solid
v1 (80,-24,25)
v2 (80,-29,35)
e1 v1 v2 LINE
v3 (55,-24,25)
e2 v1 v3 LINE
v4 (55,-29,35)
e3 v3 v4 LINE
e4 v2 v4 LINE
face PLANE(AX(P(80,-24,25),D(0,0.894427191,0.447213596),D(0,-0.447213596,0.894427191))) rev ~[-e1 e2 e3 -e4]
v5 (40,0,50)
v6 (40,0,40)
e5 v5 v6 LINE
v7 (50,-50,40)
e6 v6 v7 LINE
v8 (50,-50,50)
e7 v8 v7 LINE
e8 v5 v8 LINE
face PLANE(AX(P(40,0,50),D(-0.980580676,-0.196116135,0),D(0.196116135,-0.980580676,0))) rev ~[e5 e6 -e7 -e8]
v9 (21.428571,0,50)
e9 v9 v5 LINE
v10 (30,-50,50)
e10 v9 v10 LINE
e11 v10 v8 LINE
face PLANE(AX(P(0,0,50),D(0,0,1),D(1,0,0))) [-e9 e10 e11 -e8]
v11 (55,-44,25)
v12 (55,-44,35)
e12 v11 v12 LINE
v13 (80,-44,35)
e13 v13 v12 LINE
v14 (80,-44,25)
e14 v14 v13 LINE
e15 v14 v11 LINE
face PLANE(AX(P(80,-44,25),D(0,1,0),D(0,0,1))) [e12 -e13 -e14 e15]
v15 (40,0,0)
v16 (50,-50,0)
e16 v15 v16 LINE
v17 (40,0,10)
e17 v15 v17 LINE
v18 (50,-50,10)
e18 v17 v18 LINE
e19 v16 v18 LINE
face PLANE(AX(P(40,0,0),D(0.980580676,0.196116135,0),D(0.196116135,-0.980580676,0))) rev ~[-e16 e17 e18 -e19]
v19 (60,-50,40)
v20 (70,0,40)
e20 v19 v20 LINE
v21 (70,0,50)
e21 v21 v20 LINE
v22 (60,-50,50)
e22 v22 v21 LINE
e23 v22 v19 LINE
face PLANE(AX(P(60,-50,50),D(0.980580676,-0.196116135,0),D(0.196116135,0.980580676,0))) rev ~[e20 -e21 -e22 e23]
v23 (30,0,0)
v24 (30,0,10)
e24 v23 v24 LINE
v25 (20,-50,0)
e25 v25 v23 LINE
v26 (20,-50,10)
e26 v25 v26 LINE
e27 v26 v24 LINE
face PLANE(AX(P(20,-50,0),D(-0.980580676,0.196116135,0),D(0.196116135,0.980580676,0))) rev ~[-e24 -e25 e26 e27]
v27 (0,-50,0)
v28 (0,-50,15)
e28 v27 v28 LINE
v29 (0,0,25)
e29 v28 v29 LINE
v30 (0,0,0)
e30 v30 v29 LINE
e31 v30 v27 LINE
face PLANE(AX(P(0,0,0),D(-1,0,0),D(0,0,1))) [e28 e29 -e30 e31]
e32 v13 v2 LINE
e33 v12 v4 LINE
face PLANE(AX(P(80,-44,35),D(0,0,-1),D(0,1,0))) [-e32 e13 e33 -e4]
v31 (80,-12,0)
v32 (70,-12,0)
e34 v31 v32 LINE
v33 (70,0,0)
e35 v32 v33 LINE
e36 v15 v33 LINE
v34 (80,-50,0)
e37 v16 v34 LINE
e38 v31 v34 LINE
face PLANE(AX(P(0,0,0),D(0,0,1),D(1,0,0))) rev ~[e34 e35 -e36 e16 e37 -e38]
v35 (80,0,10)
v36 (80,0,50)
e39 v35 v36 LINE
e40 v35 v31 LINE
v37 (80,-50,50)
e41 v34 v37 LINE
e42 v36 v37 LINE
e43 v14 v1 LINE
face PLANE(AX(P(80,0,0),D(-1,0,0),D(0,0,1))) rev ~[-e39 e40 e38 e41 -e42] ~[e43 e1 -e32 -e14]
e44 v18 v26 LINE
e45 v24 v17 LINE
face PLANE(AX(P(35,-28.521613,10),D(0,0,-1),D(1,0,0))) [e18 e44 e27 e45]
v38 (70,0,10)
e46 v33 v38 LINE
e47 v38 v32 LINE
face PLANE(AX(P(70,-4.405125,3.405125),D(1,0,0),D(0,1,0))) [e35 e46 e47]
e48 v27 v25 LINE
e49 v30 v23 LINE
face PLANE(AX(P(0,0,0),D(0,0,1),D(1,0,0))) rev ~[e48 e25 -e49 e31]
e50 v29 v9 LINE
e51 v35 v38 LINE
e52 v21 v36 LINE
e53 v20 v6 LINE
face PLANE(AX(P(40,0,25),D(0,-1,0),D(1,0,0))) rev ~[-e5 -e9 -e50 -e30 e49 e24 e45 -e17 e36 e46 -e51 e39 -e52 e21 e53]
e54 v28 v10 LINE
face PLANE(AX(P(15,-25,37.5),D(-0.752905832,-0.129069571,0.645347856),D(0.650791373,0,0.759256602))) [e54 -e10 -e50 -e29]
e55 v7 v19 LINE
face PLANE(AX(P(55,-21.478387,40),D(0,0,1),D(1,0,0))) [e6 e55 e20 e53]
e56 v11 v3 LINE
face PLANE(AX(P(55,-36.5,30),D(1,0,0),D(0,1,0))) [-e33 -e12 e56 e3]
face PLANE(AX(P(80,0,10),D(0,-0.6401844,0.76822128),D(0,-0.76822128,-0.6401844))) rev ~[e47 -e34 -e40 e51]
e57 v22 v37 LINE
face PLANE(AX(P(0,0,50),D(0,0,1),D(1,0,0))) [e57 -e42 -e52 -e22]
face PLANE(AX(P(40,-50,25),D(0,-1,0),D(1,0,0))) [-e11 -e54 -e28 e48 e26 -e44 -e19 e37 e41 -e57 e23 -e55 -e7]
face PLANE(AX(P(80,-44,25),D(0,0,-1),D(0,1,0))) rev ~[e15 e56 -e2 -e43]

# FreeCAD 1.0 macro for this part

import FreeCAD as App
import Part
import Sketcher

V = App.Vector


def add_polygon(sketch, points):
    """Adds a closed chain of lines whose ends are joined by coincident constraints."""
    first, n = sketch.GeometryCount, len(points)
    for a, b in zip(points, points[1:] + points[:1]):
        sketch.addGeometry(Part.LineSegment(App.Vector(*a, 0), App.Vector(*b, 0)), False)
    for i in range(n):
        sketch.addConstraint(Sketcher.Constraint("Coincident", first + i, 2, first + (i + 1) % n, 1))

doc = App.newDocument("Part")
body = doc.addObject("PartDesign::Body", "Body")

# Sketch on XZ plane
sketch1 = body.newObject("Sketcher::SketchObject", "Sketch")
sketch1.AttachmentSupport = (doc.getObject("XZ_Plane"), [""])
sketch1.MapMode = "FlatFace"
add_polygon(sketch1, [(0, 50), (0, 0), (80, 0), (80, 50)])  # lines 0-3
sketch1.addConstraint(Sketcher.Constraint("Vertical", 0))
sketch1.addConstraint(Sketcher.Constraint("Horizontal", 1))
sketch1.addConstraint(Sketcher.Constraint("Vertical", 2))
sketch1.addConstraint(Sketcher.Constraint("Horizontal", 3))
sketch1.addConstraint(Sketcher.Constraint("Coincident", 0, 2, -1, 1))
sketch1.addConstraint(Sketcher.Constraint("DistanceX", 1, 1, 1, 2, 80.0))
sketch1.addConstraint(Sketcher.Constraint("DistanceY", 0, 2, 0, 1, 50.0))
pad1 = body.newObject("PartDesign::Pad", "Pad")
pad1.Profile = sketch1
pad1.Length = 50

# Sketch on XY plane
sketch2 = body.newObject("Sketcher::SketchObject", "Sketch001")
sketch2.AttachmentSupport = (doc.getObject("XY_Plane"), [""])
sketch2.MapMode = "FlatFace"
sketch2.AttachmentOffset = App.Placement(V(0, 0, 50), App.Rotation())
add_polygon(sketch2, [(70, 0), (40, 0), (50, -50), (60, -50)])  # lines 0-3
sketch2.addConstraint(Sketcher.Constraint("Horizontal", 0))
sketch2.addConstraint(Sketcher.Constraint("Horizontal", 2))
sketch2.addConstraint(Sketcher.Constraint("PointOnObject", 0, 2, -1))
sketch2.addConstraint(Sketcher.Constraint("Equal", 1, 3))
sketch2.addConstraint(Sketcher.Constraint("DistanceX", 0, 2, 0, 1, 30.0))
sketch2.addConstraint(Sketcher.Constraint("DistanceX", 2, 1, 2, 2, 10.0))
sketch2.addConstraint(Sketcher.Constraint("DistanceX", -1, 1, 0, 2, 40.0))
sketch2.addConstraint(Sketcher.Constraint("DistanceY", 1, 2, -1, 1, 50.0))
pocket1 = body.newObject("PartDesign::Pocket", "Pocket")
pocket1.Profile = sketch2
pocket1.Length = 10

# Sketch on YZ plane
sketch3 = body.newObject("Sketcher::SketchObject", "Sketch002")
sketch3.AttachmentSupport = (doc.getObject("YZ_Plane"), [""])
sketch3.MapMode = "FlatFace"
sketch3.AttachmentOffset = App.Placement(V(0, 0, 80), App.Rotation())
add_polygon(sketch3, [(-44, 35), (-44, 25), (-24, 25), (-29, 35)])  # lines 0-3
sketch3.addConstraint(Sketcher.Constraint("Vertical", 0))
sketch3.addConstraint(Sketcher.Constraint("Horizontal", 1))
sketch3.addConstraint(Sketcher.Constraint("Horizontal", 3))
sketch3.addConstraint(Sketcher.Constraint("DistanceX", 1, 1, 1, 2, 20.0))
sketch3.addConstraint(Sketcher.Constraint("DistanceX", 3, 2, 3, 1, 15.0))
sketch3.addConstraint(Sketcher.Constraint("DistanceY", 0, 2, 0, 1, 10.0))
sketch3.addConstraint(Sketcher.Constraint("DistanceX", 0, 2, -1, 1, 44.0))
sketch3.addConstraint(Sketcher.Constraint("DistanceY", -1, 1, 0, 2, 25.0))
pocket2 = body.newObject("PartDesign::Pocket", "Pocket001")
pocket2.Profile = sketch3
pocket2.Length = 25

# Sketch on YZ plane
sketch4 = body.newObject("Sketcher::SketchObject", "Sketch003")
sketch4.AttachmentSupport = (doc.getObject("YZ_Plane"), [""])
sketch4.MapMode = "FlatFace"
sketch4.AttachmentOffset = App.Placement(V(0, 0, 80), App.Rotation())
add_polygon(sketch4, [(0, 10), (-12, 0), (0, 0)])  # lines 0-2
sketch4.addConstraint(Sketcher.Constraint("Horizontal", 1))
sketch4.addConstraint(Sketcher.Constraint("Vertical", 2))
sketch4.addConstraint(Sketcher.Constraint("Coincident", 1, 2, -1, 1))
sketch4.addConstraint(Sketcher.Constraint("DistanceX", 1, 1, 1, 2, 12.0))
sketch4.addConstraint(Sketcher.Constraint("DistanceY", 2, 1, 2, 2, 10.0))
pocket3 = body.newObject("PartDesign::Pocket", "Pocket002")
pocket3.Profile = sketch4
pocket3.Length = 10

# Sketch on XY plane
sketch5 = body.newObject("Sketcher::SketchObject", "Sketch004")
sketch5.AttachmentSupport = (doc.getObject("XY_Plane"), [""])
sketch5.MapMode = "FlatFace"
add_polygon(sketch5, [(20, -50), (30, 0), (40, 0), (50, -50)])  # lines 0-3
sketch5.addConstraint(Sketcher.Constraint("Horizontal", 1))
sketch5.addConstraint(Sketcher.Constraint("Horizontal", 3))
sketch5.addConstraint(Sketcher.Constraint("PointOnObject", 0, 2, -1))
sketch5.addConstraint(Sketcher.Constraint("Equal", 0, 2))
sketch5.addConstraint(Sketcher.Constraint("DistanceX", 1, 1, 1, 2, 10.0))
sketch5.addConstraint(Sketcher.Constraint("DistanceX", 3, 2, 3, 1, 30.0))
sketch5.addConstraint(Sketcher.Constraint("DistanceX", -1, 1, 0, 2, 30.0))
sketch5.addConstraint(Sketcher.Constraint("DistanceY", 2, 2, -1, 1, 50.0))
pocket4 = body.newObject("PartDesign::Pocket", "Pocket003")
pocket4.Profile = sketch5
pocket4.Length = 10
pocket4.Reversed = True

# Sketch on XZ plane
sketch6 = body.newObject("Sketcher::SketchObject", "Sketch005")
sketch6.AttachmentSupport = (doc.getObject("XZ_Plane"), [""])
sketch6.MapMode = "FlatFace"
sketch6.AttachmentOffset = App.Placement(V(0, 0, 50), App.Rotation())
add_polygon(sketch6, [(0, 15), (30, 50), (0, 50)])  # lines 0-2
sketch6.addConstraint(Sketcher.Constraint("Horizontal", 1))
sketch6.addConstraint(Sketcher.Constraint("Vertical", 2))
sketch6.addConstraint(Sketcher.Constraint("PointOnObject", 1, 2, -2))
sketch6.addConstraint(Sketcher.Constraint("DistanceX", 1, 2, 1, 1, 30.0))
sketch6.addConstraint(Sketcher.Constraint("DistanceY", 2, 2, 2, 1, 35.0))
sketch6.addConstraint(Sketcher.Constraint("DistanceY", -1, 1, 0, 2, 50.0))

# Sketch on an angled plane
sketch7 = body.newObject("Sketcher::SketchObject", "Sketch006")
sketch7.Placement = App.Placement(V(0, -4.807692, 24.038462), App.Rotation(V(0, -0.980580676, -0.196116135), V(1.000000001, 0, 0), V(0, -0.196116135, 0.980580676), "ZXY"))
sketch7.addGeometry(Part.LineSegment(V(46, 0, 0), V(-5, 0, 0)), False)
sketch7.addConstraint(Sketcher.Constraint("Horizontal", 0))
sketch7.addConstraint(Sketcher.Constraint("PointOnObject", 0, 1, -1))
sketch7.addConstraint(Sketcher.Constraint("DistanceX", 0, 2, 0, 1, 50.990195))
sketch7.addConstraint(Sketcher.Constraint("DistanceX", -1, 1, 0, 1, 46.087292))
doc.recompute()

subtractivepipe = body.newObject("PartDesign::SubtractivePipe", "SubtractivePipe")
subtractivepipe.Profile = sketch6
subtractivepipe.Spine = (sketch7, ["Edge1"])

doc.recompute()
